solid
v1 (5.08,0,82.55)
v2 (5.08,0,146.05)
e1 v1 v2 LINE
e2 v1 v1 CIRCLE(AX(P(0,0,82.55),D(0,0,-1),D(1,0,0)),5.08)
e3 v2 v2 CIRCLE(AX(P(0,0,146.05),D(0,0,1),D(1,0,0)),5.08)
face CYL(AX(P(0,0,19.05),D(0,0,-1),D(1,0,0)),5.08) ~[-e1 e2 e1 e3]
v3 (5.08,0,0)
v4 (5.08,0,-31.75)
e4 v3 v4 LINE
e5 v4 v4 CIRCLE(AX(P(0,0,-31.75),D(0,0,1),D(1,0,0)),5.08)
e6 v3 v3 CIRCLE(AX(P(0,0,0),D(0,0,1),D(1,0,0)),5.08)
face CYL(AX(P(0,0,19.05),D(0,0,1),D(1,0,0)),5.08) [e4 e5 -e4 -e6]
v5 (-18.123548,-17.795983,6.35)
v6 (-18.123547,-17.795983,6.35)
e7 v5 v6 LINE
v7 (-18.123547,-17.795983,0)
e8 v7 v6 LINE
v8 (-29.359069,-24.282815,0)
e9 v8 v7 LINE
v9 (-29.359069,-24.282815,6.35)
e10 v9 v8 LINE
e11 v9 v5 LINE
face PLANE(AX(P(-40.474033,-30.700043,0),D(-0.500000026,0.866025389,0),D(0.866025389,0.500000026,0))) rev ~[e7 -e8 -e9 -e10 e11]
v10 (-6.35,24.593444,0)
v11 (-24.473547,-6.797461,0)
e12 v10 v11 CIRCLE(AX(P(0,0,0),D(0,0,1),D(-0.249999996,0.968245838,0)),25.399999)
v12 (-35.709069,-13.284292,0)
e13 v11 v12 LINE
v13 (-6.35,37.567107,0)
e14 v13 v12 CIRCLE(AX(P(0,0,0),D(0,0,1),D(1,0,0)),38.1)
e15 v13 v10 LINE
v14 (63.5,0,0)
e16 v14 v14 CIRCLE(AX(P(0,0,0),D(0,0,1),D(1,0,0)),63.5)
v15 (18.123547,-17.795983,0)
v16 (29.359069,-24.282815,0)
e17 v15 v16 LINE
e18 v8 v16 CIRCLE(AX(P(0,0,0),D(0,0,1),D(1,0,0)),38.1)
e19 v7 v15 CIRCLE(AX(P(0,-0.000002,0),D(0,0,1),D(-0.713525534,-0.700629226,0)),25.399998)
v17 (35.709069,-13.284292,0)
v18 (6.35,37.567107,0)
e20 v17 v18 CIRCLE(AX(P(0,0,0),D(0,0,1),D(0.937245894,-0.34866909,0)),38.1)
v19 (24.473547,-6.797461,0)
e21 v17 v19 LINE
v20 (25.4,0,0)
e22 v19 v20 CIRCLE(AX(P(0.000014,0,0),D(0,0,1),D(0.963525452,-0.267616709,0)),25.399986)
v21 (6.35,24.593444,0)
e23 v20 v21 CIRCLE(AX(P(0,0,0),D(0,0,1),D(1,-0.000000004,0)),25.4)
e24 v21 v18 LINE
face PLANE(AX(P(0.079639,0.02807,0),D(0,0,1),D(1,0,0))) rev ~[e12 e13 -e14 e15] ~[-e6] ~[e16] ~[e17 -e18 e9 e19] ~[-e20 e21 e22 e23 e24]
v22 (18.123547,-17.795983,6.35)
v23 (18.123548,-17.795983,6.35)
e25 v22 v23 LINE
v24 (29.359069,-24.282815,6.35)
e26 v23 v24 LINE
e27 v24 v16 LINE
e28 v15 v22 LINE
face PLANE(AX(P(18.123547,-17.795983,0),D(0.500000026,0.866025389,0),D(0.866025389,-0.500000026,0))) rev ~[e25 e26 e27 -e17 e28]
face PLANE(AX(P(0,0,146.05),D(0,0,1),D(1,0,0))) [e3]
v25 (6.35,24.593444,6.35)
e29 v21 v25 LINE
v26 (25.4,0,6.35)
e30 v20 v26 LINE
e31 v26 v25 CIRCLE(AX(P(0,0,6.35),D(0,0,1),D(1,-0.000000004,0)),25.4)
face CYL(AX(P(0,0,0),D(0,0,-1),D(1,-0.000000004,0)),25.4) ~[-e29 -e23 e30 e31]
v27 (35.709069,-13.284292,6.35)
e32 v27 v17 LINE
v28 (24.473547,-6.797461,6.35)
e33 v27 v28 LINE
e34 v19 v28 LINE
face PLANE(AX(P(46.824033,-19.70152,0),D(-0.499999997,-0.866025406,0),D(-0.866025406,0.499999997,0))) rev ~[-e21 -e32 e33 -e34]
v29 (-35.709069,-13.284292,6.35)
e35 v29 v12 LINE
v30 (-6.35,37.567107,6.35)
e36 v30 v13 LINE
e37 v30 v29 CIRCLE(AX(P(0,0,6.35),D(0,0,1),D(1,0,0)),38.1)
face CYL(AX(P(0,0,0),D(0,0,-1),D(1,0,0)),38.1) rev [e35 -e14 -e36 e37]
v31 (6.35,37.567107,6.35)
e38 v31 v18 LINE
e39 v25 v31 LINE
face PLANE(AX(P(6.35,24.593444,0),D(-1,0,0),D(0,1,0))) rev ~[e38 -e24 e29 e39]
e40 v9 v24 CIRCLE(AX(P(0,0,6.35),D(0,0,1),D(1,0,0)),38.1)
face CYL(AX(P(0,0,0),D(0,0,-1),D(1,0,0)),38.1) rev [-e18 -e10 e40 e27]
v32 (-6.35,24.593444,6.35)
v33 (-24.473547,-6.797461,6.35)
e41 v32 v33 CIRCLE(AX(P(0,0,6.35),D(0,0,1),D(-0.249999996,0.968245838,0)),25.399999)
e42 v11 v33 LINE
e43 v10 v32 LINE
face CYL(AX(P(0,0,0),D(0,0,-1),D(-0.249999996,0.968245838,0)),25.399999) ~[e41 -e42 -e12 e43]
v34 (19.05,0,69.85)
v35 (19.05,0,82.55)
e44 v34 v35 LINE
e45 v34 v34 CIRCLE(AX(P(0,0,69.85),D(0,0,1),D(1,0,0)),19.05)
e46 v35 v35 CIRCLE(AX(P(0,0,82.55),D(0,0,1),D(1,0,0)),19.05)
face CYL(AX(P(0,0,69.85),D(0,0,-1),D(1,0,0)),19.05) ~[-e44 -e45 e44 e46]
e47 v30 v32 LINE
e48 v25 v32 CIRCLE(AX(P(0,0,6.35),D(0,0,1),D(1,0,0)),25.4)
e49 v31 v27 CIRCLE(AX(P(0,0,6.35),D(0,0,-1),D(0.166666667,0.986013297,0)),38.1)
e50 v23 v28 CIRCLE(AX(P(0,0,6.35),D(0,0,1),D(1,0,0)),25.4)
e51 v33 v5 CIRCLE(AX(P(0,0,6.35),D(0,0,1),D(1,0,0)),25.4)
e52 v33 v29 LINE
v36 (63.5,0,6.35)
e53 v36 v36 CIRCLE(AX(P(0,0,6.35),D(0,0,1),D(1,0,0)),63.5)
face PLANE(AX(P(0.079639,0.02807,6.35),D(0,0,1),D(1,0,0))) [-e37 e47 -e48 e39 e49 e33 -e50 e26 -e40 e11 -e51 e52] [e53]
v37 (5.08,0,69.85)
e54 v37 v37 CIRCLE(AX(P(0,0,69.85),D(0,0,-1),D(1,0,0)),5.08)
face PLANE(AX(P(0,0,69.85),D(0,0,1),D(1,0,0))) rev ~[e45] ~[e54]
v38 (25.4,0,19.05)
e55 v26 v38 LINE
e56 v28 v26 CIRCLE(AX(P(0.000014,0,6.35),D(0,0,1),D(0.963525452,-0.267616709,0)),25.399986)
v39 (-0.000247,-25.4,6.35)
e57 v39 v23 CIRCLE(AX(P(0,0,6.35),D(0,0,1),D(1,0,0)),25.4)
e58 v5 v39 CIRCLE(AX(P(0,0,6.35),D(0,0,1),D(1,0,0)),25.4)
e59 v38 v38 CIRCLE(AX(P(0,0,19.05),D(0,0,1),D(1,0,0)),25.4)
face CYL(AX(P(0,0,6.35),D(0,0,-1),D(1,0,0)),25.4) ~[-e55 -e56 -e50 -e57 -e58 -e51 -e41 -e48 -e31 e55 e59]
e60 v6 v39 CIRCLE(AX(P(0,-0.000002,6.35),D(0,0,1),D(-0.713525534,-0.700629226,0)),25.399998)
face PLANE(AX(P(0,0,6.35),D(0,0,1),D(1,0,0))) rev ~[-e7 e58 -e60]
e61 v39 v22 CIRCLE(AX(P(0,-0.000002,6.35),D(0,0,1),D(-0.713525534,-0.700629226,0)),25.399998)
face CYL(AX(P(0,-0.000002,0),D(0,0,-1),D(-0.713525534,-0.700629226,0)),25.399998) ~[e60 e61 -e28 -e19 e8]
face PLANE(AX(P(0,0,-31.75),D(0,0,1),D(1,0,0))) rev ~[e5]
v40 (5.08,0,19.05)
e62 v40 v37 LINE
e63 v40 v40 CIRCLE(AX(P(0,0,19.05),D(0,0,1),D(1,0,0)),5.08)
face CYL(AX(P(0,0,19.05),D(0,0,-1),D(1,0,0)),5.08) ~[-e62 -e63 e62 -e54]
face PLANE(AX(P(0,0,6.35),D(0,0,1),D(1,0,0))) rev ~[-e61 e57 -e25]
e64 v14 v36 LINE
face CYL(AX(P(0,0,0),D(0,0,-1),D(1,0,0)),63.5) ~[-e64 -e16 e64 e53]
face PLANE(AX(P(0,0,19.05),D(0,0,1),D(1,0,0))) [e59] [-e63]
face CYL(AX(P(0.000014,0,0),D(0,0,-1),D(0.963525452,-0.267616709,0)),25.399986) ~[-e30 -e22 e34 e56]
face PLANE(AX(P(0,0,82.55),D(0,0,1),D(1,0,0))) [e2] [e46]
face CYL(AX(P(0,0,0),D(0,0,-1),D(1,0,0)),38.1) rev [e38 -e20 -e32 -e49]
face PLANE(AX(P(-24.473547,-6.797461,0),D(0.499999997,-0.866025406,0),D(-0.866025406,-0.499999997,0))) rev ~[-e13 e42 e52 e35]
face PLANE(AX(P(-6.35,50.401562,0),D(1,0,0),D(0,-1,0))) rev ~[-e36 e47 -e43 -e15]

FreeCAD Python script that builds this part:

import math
import FreeCAD as App
import Part
import Sketcher
Q = App.Units.Quantity

doc = App.newDocument("Part")
body = doc.addObject("PartDesign::Body", "Body")

sketch1 = doc.addObject("Sketcher::SketchObject", "Sketch")
body.addObject(sketch1)
sketch1.AttachmentSupport = (doc.XY_Plane, [""])
sketch1.MapMode = "FlatFace"
sketch1.addGeometry([
    Part.Circle(App.Vector(0, 0, 0), App.Vector(0, 0, 1), 64),
    Part.Circle(App.Vector(0, 0, 0), App.Vector(0, 0, 1), 38),
], False)
sketch1.addConstraint([
    Sketcher.Constraint("Coincident", 0, 3, -1, 1),
    Sketcher.Constraint("Coincident", 1, 3, -1, 1),
    Sketcher.Constraint("Diameter", 0, Q("5 in")),
    Sketcher.Constraint("Diameter", 1, Q("3 in")),
])
pad1 = doc.addObject("PartDesign::Pad", "Pad")
body.addObject(pad1)
pad1.Profile = sketch1
pad1.Length = Q("0.25 in")

sketch2 = doc.addObject("Sketcher::SketchObject", "Sketch001")
body.addObject(sketch2)
sketch2.AttachmentSupport = (doc.XY_Plane, [""])
sketch2.MapMode = "FlatFace"
sketch2.addGeometry([
    Part.ArcOfCircle(Part.Circle(App.Vector(0, 0, 0), App.Vector(0, 0, 1), 25.4), math.radians(0), math.radians(75.522489)),
    Part.LineSegment(App.Vector(6.35, 24.593444, 0), App.Vector(6.35, 50.401562, 0)),
    Part.ArcOfCircle(Part.Circle(App.Vector(0, 0.00006, 0), App.Vector(0, 0, 1), 50.79994), math.radians(82.819236), math.radians(97.180764)),
    Part.LineSegment(App.Vector(-6.35, 50.401562, 0), App.Vector(-6.35, 24.593444, 0)),
    Part.ArcOfCircle(Part.Circle(App.Vector(0, 0, 0), App.Vector(0, 0, 1), 25.399999), math.radians(104.477512), math.radians(195.522489)),
    Part.LineSegment(App.Vector(-24.473547, -6.797461, 0), App.Vector(-46.824033, -19.70152, 0)),
    Part.ArcOfCircle(Part.Circle(App.Vector(-0.000076, -0.000045, 0), App.Vector(0, 0, 1), 50.799912), math.radians(-157.180769), math.radians(-142.819232)),
    Part.LineSegment(App.Vector(-40.474033, -30.700043, 0), App.Vector(-18.123547, -17.795983, 0)),
    Part.ArcOfCircle(Part.Circle(App.Vector(0, -0.000002, 0), App.Vector(0, 0, 1), 25.399998), math.radians(-135.522491), math.radians(-44.477509)),
    Part.LineSegment(App.Vector(18.123547, -17.795983, 0), App.Vector(40.474033, -30.700043, 0)),
    Part.ArcOfCircle(Part.Circle(App.Vector(0.000076, -0.000045, 0), App.Vector(0, 0, 1), 50.799912), math.radians(-37.180768), math.radians(-22.819231)),
    Part.LineSegment(App.Vector(46.824033, -19.70152, 0), App.Vector(24.473547, -6.797461, 0)),
    Part.ArcOfCircle(Part.Circle(App.Vector(0.000014, 0, 0), App.Vector(0, 0, 1), 25.399986), math.radians(-15.522496), math.radians(0.000001)),
], False)
sketch2.addConstraint([
    Sketcher.Constraint("Coincident", 0, 2, 1, 1),
    Sketcher.Constraint("Coincident", 1, 2, 2, 1),
    Sketcher.Constraint("Coincident", 2, 2, 3, 1),
    Sketcher.Constraint("Coincident", 3, 2, 4, 1),
    Sketcher.Constraint("Coincident", 4, 2, 5, 1),
    Sketcher.Constraint("Coincident", 5, 2, 6, 1),
    Sketcher.Constraint("Coincident", 6, 2, 7, 1),
    Sketcher.Constraint("Coincident", 7, 2, 8, 1),
    Sketcher.Constraint("Coincident", 8, 2, 9, 1),
    Sketcher.Constraint("Coincident", 9, 2, 10, 1),
    Sketcher.Constraint("Coincident", 10, 2, 11, 1),
    Sketcher.Constraint("Coincident", 11, 2, 12, 1),
    Sketcher.Constraint("Tangent", 12, 2, 0, 1),
    Sketcher.Constraint("Vertical", 1),
    Sketcher.Constraint("Vertical", 3),
    Sketcher.Constraint("Coincident", 0, 3, -1, 1),
    Sketcher.Constraint("Coincident", 4, 3, -1, 1),
    Sketcher.Constraint("Coincident", 8, 3, -1, 1),
    Sketcher.Constraint("Equal", 0, 4),
    Sketcher.Constraint("Equal", 4, 8),
    Sketcher.Constraint("Equal", 6, 10),
    Sketcher.Constraint("Symmetric", 6, 3, 10, 3, -2),
    Sketcher.Constraint("Symmetric", 1, 2, 2, 2, -2),
    Sketcher.Constraint("Symmetric", 4, 2, 11, 2, -2),
    Sketcher.Constraint("PointOnObject", 12, 2, -1),
    Sketcher.Constraint("Parallel", 5, 7),
    Sketcher.Constraint("Parallel", 9, 11),
    Sketcher.Constraint("Horizontal", 7, 2, 8, 2),
    Sketcher.Constraint("Horizontal", 6, 2, 9, 2),
    Sketcher.Constraint("Equal", 5, 7),
    Sketcher.Constraint("Radius", 0, Q("1 in")),
    Sketcher.Constraint("Angle", 5, Q("-150 deg")),
    Sketcher.Constraint("DistanceX", 2, 2, 1, 2, Q("0.5 in")),
    Sketcher.Constraint("DistanceX", 5, 2, 6, 2, Q("0.25 in")),
    Sketcher.Constraint("Radius", 2, 50.79994),
    Sketcher.Constraint("Radius", 6, 50.799912),
    Sketcher.Constraint("Distance", 5, 25.808118),
    Sketcher.Constraint("DistanceY", 1, 1, 1, 2, 25.808118),
    Sketcher.Constraint("DistanceY", 4, 2, -1, 1, 6.797461),
])
pad2 = doc.addObject("PartDesign::Pad", "Pad001")
body.addObject(pad2)
pad2.Profile = sketch2
pad2.Length = Q("0.25 in")

sketch3 = doc.addObject("Sketcher::SketchObject", "Sketch002")
body.addObject(sketch3)
sketch3.AttachmentSupport = (doc.XY_Plane, [""])
sketch3.MapMode = "FlatFace"
sketch3.AttachmentOffset = App.Placement(App.Vector(0, 0, 0.25 * 25.4), App.Rotation())
sketch3.addGeometry(Part.Circle(App.Vector(0, 0, 0), App.Vector(0, 0, 1), 25), False)
sketch3.addConstraint([
    Sketcher.Constraint("Coincident", 0, 3, -1, 1),
    Sketcher.Constraint("Diameter", 0, Q("2 in")),
])
pad3 = doc.addObject("PartDesign::Pad", "Pad002")
body.addObject(pad3)
pad3.Profile = sketch3
pad3.Length = Q("0.5 in")

sketch4 = doc.addObject("Sketcher::SketchObject", "Sketch003")
body.addObject(sketch4)
sketch4.AttachmentSupport = (doc.XY_Plane, [""])
sketch4.MapMode = "FlatFace"
sketch4.AttachmentOffset = App.Placement(App.Vector(0, 0, 0.75 * 25.4), App.Rotation())
sketch4.addGeometry(Part.Circle(App.Vector(0, 0, 0), App.Vector(0, 0, 1), 5), False)
sketch4.addConstraint([
    Sketcher.Constraint("Coincident", 0, 3, -1, 1),
    Sketcher.Constraint("Diameter", 0, Q("0.4 in")),
])
pad4 = doc.addObject("PartDesign::Pad", "Pad003")
body.addObject(pad4)
pad4.Profile = sketch4
pad4.Length = Q("2 in")
pad4.Reversed = True

sketch5 = doc.addObject("Sketcher::SketchObject", "Sketch004")
body.addObject(sketch5)
sketch5.AttachmentSupport = (doc.XY_Plane, [""])
sketch5.MapMode = "FlatFace"
sketch5.AttachmentOffset = App.Placement(App.Vector(0, 0, 0.75 * 25.4), App.Rotation())
sketch5.addGeometry(Part.Circle(App.Vector(0, 0, 0), App.Vector(0, 0, 1), 5), False)
sketch5.addConstraint([
    Sketcher.Constraint("Coincident", 0, 3, -1, 1),
    Sketcher.Constraint("Diameter", 0, Q("0.4 in")),
])
pad5 = doc.addObject("PartDesign::Pad", "Pad004")
body.addObject(pad5)
pad5.Profile = sketch5
pad5.Length = Q("5 in")

sketch6 = doc.addObject("Sketcher::SketchObject", "Sketch005")
body.addObject(sketch6)
sketch6.AttachmentSupport = (doc.XY_Plane, [""])
sketch6.MapMode = "FlatFace"
sketch6.AttachmentOffset = App.Placement(App.Vector(0, 0, 2.75 * 25.4), App.Rotation())
sketch6.addGeometry(Part.Circle(App.Vector(0, 0, 0), App.Vector(0, 0, 1), 19), False)
sketch6.addConstraint([
    Sketcher.Constraint("Coincident", 0, 3, -1, 1),
    Sketcher.Constraint("Diameter", 0, Q("1.5 in")),
])
pad6 = doc.addObject("PartDesign::Pad", "Pad005")
body.addObject(pad6)
pad6.Profile = sketch6
pad6.Length = Q("0.5 in")

doc.recompute()
